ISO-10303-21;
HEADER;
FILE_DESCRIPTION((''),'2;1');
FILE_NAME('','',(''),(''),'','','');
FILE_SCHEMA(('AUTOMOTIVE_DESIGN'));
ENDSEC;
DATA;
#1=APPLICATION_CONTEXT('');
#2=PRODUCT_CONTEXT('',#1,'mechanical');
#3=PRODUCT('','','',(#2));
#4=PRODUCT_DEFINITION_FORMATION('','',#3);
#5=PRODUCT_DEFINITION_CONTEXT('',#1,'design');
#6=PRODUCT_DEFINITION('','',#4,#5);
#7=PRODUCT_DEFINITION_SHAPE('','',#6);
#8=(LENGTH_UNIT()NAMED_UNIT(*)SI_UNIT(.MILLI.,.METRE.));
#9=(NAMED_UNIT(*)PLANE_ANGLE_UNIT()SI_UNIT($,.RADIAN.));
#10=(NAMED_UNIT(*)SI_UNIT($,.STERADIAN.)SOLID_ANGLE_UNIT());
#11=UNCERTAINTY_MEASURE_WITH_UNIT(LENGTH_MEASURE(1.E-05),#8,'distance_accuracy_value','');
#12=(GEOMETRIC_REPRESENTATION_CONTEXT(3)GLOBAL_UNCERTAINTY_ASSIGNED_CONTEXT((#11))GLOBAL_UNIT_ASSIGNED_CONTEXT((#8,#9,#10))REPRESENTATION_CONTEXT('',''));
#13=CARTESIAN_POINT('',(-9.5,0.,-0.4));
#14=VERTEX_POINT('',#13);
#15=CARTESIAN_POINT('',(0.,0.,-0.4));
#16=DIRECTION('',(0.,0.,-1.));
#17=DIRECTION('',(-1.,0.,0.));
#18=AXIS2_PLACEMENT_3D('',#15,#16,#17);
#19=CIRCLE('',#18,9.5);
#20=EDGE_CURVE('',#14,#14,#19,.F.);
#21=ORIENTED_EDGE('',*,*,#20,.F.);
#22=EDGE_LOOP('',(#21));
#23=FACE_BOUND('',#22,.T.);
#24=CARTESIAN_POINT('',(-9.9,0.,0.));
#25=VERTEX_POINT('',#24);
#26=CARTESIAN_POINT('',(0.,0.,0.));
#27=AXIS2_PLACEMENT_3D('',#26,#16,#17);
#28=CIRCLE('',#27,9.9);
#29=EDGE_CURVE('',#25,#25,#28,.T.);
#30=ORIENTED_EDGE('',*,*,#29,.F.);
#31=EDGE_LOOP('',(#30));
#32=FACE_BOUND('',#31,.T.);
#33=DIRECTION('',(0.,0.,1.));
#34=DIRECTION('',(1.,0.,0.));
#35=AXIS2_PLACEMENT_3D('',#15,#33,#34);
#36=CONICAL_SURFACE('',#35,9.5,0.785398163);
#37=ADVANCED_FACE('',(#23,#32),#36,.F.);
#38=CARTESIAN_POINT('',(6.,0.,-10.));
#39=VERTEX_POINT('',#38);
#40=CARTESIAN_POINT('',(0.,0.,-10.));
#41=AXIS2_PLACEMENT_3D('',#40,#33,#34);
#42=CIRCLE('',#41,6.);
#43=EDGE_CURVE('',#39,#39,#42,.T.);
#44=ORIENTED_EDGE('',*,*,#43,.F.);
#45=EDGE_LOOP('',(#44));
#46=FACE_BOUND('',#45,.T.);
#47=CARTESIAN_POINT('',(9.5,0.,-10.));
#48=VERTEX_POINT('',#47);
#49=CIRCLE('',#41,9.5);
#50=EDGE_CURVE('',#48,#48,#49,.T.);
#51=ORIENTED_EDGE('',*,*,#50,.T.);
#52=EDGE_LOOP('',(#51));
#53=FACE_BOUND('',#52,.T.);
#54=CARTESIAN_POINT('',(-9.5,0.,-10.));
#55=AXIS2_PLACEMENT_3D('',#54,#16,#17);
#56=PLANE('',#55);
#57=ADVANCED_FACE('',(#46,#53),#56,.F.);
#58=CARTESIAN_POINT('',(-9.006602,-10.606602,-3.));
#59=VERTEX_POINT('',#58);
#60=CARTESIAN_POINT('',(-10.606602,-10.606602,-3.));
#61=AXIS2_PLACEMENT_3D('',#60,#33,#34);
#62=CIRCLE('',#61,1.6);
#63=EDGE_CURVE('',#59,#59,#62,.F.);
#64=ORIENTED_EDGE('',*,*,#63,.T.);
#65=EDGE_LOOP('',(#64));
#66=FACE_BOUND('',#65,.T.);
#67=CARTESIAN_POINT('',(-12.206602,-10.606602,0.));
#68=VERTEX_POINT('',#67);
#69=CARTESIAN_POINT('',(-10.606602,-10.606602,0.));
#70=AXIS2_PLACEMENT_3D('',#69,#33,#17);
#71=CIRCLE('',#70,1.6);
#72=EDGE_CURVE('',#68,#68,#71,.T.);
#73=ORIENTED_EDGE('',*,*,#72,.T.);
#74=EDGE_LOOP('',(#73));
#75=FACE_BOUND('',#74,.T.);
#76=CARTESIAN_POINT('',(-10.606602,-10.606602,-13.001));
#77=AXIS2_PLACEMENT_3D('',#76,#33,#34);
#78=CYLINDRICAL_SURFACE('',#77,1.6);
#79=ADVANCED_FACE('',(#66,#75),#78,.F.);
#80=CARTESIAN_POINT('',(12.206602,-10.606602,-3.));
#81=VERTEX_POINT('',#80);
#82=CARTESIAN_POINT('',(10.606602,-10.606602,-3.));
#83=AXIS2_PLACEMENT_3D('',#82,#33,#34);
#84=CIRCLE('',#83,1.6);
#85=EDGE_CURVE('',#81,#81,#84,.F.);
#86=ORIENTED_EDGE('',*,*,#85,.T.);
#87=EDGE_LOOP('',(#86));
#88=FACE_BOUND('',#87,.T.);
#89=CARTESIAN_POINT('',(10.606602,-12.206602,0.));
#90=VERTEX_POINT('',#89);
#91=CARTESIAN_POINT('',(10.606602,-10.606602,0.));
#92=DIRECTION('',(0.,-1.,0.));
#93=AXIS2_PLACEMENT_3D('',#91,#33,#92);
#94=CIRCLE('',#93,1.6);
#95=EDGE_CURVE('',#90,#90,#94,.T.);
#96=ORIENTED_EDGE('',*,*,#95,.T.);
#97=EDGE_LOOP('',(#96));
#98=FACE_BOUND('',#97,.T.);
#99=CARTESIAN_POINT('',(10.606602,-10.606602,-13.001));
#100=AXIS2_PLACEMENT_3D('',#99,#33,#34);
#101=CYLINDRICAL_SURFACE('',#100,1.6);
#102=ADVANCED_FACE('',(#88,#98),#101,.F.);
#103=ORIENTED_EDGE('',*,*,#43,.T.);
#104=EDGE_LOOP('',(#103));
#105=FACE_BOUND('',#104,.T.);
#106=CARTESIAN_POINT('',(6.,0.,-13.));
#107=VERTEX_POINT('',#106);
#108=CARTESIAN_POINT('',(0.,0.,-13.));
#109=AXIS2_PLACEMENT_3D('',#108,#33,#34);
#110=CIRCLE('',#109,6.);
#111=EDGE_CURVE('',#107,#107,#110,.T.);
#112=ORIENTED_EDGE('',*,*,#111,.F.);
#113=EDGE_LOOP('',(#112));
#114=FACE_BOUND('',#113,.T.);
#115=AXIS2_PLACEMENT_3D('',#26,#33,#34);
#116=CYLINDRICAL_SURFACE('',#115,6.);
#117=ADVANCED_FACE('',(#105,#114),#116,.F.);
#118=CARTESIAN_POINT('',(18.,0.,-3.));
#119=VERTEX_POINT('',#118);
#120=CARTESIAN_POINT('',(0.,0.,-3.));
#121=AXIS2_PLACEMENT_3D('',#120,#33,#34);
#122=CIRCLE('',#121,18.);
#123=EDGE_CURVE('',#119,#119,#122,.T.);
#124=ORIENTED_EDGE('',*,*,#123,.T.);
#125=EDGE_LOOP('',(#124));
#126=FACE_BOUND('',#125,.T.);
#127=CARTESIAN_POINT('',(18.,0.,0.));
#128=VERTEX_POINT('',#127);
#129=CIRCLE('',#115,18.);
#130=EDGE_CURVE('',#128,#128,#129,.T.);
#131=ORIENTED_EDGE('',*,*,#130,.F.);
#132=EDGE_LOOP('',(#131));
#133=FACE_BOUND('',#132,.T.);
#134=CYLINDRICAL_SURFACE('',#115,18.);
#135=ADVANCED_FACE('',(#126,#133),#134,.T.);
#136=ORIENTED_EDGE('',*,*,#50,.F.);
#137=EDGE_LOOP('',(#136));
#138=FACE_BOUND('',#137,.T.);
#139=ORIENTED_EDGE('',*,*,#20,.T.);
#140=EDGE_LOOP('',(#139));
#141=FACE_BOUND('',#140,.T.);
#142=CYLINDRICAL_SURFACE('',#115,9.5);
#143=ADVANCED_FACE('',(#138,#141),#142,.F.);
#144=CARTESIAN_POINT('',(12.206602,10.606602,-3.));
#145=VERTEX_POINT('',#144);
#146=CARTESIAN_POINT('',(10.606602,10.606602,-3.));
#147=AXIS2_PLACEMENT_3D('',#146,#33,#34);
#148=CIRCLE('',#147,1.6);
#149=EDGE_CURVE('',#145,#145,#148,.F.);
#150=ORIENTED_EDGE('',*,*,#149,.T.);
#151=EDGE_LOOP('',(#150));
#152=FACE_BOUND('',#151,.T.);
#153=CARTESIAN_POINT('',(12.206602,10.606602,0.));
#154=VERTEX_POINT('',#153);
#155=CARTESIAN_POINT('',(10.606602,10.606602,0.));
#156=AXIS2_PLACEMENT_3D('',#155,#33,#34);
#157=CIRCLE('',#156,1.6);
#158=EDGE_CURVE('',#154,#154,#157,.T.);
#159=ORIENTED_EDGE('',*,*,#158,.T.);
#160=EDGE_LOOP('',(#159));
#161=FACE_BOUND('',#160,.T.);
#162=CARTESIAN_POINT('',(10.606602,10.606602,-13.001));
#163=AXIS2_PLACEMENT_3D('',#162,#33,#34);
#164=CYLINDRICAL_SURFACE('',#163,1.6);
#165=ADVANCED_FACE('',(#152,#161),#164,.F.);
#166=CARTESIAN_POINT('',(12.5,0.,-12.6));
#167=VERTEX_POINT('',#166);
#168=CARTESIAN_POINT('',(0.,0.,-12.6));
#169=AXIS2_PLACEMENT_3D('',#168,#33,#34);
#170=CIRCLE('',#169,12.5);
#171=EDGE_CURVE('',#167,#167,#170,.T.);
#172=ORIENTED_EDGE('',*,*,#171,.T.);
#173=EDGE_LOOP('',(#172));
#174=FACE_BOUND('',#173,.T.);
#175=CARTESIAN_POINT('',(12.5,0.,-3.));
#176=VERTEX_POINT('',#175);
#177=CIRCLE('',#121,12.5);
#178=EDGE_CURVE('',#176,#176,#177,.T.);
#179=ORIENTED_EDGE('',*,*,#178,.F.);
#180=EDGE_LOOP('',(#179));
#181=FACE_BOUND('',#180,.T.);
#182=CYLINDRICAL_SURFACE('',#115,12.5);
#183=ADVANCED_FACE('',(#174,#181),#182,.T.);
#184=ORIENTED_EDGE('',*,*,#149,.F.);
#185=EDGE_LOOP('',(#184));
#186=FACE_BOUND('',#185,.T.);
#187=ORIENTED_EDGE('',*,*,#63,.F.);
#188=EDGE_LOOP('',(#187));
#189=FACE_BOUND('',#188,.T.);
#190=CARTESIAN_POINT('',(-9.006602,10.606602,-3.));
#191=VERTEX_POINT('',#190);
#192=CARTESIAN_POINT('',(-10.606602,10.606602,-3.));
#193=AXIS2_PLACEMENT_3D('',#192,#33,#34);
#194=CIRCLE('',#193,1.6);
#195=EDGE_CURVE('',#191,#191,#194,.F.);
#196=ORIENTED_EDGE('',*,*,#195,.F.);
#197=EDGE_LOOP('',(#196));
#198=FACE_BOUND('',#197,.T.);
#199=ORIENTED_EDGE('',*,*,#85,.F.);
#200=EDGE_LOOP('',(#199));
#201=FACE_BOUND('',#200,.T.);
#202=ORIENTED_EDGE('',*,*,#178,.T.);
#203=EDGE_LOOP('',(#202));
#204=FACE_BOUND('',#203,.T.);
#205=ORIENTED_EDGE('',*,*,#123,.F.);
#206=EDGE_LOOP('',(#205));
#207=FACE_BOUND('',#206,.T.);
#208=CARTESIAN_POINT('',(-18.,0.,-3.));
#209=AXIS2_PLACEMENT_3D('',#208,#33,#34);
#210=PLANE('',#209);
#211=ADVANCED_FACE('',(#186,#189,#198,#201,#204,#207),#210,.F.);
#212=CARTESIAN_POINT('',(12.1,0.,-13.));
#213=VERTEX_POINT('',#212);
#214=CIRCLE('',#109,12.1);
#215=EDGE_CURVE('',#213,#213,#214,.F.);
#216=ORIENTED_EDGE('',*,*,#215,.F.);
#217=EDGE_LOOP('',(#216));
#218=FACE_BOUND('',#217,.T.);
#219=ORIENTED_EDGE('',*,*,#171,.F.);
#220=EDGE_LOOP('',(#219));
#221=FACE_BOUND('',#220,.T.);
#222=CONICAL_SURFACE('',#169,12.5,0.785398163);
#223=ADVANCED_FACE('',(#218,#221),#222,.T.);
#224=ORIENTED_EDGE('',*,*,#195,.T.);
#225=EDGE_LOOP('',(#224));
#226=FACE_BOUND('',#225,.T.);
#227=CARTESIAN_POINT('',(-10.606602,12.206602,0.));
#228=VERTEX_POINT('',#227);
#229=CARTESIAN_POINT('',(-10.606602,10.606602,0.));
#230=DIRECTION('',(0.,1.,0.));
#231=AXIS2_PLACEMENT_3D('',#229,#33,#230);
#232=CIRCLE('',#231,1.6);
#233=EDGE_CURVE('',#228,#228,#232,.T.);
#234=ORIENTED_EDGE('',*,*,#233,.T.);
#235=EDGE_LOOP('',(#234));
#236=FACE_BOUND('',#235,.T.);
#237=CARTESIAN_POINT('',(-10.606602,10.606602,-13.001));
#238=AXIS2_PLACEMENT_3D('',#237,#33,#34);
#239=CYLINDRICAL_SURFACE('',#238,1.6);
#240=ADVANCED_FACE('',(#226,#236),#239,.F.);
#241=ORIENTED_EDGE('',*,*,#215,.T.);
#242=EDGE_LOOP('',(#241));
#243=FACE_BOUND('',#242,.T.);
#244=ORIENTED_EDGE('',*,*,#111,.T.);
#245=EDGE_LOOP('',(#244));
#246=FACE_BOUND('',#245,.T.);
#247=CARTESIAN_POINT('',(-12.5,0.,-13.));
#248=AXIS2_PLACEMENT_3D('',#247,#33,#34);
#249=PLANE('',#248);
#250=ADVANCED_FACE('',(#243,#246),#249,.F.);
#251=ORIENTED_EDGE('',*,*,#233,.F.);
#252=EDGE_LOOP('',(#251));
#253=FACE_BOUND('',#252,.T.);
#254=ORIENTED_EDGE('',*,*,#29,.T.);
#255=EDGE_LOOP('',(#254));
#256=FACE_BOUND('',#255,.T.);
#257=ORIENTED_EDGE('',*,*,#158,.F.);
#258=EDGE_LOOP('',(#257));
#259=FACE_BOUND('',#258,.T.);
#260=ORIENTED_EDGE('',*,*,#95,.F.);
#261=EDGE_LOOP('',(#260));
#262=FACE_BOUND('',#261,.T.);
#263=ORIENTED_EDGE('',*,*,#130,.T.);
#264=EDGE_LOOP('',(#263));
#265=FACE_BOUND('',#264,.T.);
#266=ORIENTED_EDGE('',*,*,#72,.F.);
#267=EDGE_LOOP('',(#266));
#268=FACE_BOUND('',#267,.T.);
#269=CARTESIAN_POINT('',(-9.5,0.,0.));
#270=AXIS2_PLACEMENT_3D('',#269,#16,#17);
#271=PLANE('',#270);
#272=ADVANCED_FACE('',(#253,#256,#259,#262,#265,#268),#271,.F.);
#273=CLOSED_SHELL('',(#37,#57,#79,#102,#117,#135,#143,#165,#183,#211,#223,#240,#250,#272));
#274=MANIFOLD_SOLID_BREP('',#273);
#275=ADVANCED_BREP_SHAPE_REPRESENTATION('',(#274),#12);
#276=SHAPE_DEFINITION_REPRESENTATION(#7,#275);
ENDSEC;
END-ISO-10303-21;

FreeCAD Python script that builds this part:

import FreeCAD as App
import Part
import Sketcher

V = App.Vector
Q = App.Units.Quantity


def edges_at(feature, points):
    """Names of the edges that pass closest to the given points."""
    edges = feature.Shape.Edges
    near = lambda p: min(range(len(edges)), key=lambda i: edges[i].distToShape(Part.Vertex(*p))[0])
    return sorted({f"Edge{near(p) + 1}" for p in points})

doc = App.newDocument("Part")
body = doc.addObject("PartDesign::Body", "Body")

# Sketch on XZ plane
sketch1 = body.newObject("Sketcher::SketchObject", "Sketch")
sketch1.AttachmentSupport = (doc.getObject("XZ_Plane"), [""])
sketch1.MapMode = "FlatFace"
sketch1.addGeometry([
    Part.LineSegment(V(-18, -3, 0), V(-18, 0, 0)),  # 0
    Part.LineSegment(V(-18, 0, 0), V(-9.5, 0, 0)),  # 1
    Part.LineSegment(V(-9.5, 0, 0), V(-9.5, -10, 0)),  # 2
    Part.LineSegment(V(-9.5, -10, 0), V(-6, -10, 0)),  # 3
    Part.LineSegment(V(-6, -10, 0), V(-6, -13, 0)),  # 4
    Part.LineSegment(V(-6, -13, 0), V(-12.5, -13, 0)),  # 5
    Part.LineSegment(V(-12.5, -13, 0), V(-12.5, -3, 0)),  # 6
    Part.LineSegment(V(-12.5, -3, 0), V(-18, -3, 0)),  # 7
], False)
sketch1.addConstraint([
    Sketcher.Constraint("Coincident", 0, 2, 1, 1),
    Sketcher.Constraint("Coincident", 1, 2, 2, 1),
    Sketcher.Constraint("Coincident", 2, 2, 3, 1),
    Sketcher.Constraint("Coincident", 3, 2, 4, 1),
    Sketcher.Constraint("Coincident", 4, 2, 5, 1),
    Sketcher.Constraint("Coincident", 5, 2, 6, 1),
    Sketcher.Constraint("Coincident", 6, 2, 7, 1),
    Sketcher.Constraint("Coincident", 7, 2, 0, 1),
    Sketcher.Constraint("Vertical", 0),
    Sketcher.Constraint("Horizontal", 1),
    Sketcher.Constraint("Vertical", 2),
    Sketcher.Constraint("Horizontal", 3),
    Sketcher.Constraint("Vertical", 4),
    Sketcher.Constraint("Horizontal", 5),
    Sketcher.Constraint("Vertical", 6),
    Sketcher.Constraint("Horizontal", 7),
    Sketcher.Constraint("PointOnObject", 0, 2, -1),
    Sketcher.Constraint("Equal", 0, 4),
    Sketcher.Constraint("DistanceY", 0, 1, 0, 2, Q("3 mm")),
    Sketcher.Constraint("DistanceY", 2, 2, 2, 1, Q("10 mm")),
    Sketcher.Constraint("DistanceX", 1, 1, 1, 2, Q("8.5 mm")),
    Sketcher.Constraint("DistanceX", 3, 1, 3, 2, Q("3.5 mm")),
    Sketcher.Constraint("DistanceX", 5, 2, 5, 1, Q("6.5 mm")),
    Sketcher.Constraint("DistanceX", 0, 2, -1, 1, Q("18 mm")),
])
revolution = body.newObject("PartDesign::Revolution", "Revolution")
revolution.Profile = sketch1
revolution.ReferenceAxis = (sketch1, ["V_Axis"])
revolution.Angle = 360

# Sketch on XY plane
sketch2 = body.newObject("Sketcher::SketchObject", "Sketch001")
sketch2.AttachmentSupport = (doc.getObject("XY_Plane"), [""])
sketch2.MapMode = "FlatFace"
sketch2.addGeometry(Part.Circle(V(10.606602, 10.606602, 0), V(0, 0, 1), 1.6), False)
sketch2.addConstraint([
    Sketcher.Constraint("Diameter", 0, Q("3.2 mm")),
    Sketcher.Constraint("DistanceX", -1, 1, 0, 3, Q("10.606602 mm")),
    Sketcher.Constraint("DistanceY", -1, 1, 0, 3, Q("10.606602 mm")),
])
pocket1 = body.newObject("PartDesign::Pocket", "Pocket")
pocket1.Profile = sketch2
pocket1.Length = 3
doc.recompute()

polarpattern = body.newObject("PartDesign::PolarPattern", "PolarPattern")
polarpattern.Originals = [pocket1]
polarpattern.Axis = (doc.getObject("Z_Axis"), [""])
polarpattern.Angle = 360
polarpattern.Occurrences = 4
body.Tip = polarpattern
doc.recompute()

chamfer = body.newObject("PartDesign::Chamfer", "Chamfer")
chamfer.Base = (polarpattern, edges_at(polarpattern, [(9.5, 0, 0), (12.5, 0, -13)]))
chamfer.Size = 0.4

doc.recompute()
